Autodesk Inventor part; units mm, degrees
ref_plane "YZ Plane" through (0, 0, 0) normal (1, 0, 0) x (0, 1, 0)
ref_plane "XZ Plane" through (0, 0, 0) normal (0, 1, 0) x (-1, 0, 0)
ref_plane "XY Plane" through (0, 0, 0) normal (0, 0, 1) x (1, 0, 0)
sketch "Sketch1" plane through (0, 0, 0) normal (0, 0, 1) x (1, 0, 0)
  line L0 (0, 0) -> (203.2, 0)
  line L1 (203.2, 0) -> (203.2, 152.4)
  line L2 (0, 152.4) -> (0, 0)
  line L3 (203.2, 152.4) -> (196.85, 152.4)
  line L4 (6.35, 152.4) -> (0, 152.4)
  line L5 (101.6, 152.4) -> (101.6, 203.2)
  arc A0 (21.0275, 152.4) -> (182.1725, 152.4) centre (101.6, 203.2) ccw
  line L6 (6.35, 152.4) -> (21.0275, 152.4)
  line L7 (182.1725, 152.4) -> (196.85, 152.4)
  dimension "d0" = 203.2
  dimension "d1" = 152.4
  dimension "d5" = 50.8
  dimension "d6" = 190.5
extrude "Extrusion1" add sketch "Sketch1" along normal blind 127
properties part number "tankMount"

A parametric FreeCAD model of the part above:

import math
import FreeCAD as App
import Part
import Sketcher
from FreeCAD import Vector
Q = App.Units.Quantity

doc = App.newDocument("Part")
params = doc.addObject("Spreadsheet::Sheet", "Params")
for row, (alias, value) in enumerate([
    ("sketch1_width", "8 in"),
    ("sketch1_height", "6 in"),
    ("sketch1_radius", "3.75 in"),
    ("pad1_length", "5 in"),
], start=1):
    params.set(f"A{row}", alias)
    params.set(f"B{row}", "=" + value)
    params.setAlias(f"B{row}", alias)

body = doc.addObject("PartDesign::Body", "Body")

# Sketch on XY plane
sketch1 = body.newObject("Sketcher::SketchObject", "Sketch")
sketch1.AttachmentSupport = (doc.getObject("XY_Plane"), [""])
sketch1.MapMode = "FlatFace"
sketch1.addGeometry(Part.LineSegment(Vector(0, 152, 0), Vector(0, 0, 0)), False)
sketch1.addGeometry(Part.LineSegment(Vector(0, 0, 0), Vector(203, 0, 0)), False)
sketch1.addGeometry(Part.LineSegment(Vector(203, 0, 0), Vector(203, 152, 0)), False)
sketch1.addGeometry(Part.LineSegment(Vector(203, 152, 0), Vector(182, 152, 0)), False)
sketch1.addGeometry(Part.ArcOfCircle(Part.Circle(Vector(102, 203, 0), Vector(0, 0, 1), 95), math.radians(-148), math.radians(-32)), False)
sketch1.addGeometry(Part.LineSegment(Vector(21, 152, 0), Vector(0, 152, 0)), False)
sketch1.addConstraint(Sketcher.Constraint("Coincident", 0, 2, 1, 1))
sketch1.addConstraint(Sketcher.Constraint("Coincident", 1, 2, 2, 1))
sketch1.addConstraint(Sketcher.Constraint("Coincident", 2, 2, 3, 1))
sketch1.addConstraint(Sketcher.Constraint("Coincident", 3, 2, 4, 2))
sketch1.addConstraint(Sketcher.Constraint("Coincident", 4, 1, 5, 1))
sketch1.addConstraint(Sketcher.Constraint("Coincident", 5, 2, 0, 1))
sketch1.addConstraint(Sketcher.Constraint("Vertical", 0))
sketch1.addConstraint(Sketcher.Constraint("Horizontal", 1))
sketch1.addConstraint(Sketcher.Constraint("Vertical", 2))
sketch1.addConstraint(Sketcher.Constraint("Horizontal", 3))
sketch1.addConstraint(Sketcher.Constraint("Horizontal", 5))
sketch1.addConstraint(Sketcher.Constraint("Coincident", 0, 2, -1, 1))
sketch1.addConstraint(Sketcher.Constraint("Horizontal", 3, 2, 4, 1))
sketch1.addConstraint(Sketcher.Constraint("Equal", 3, 5))
sketch1.addConstraint(Sketcher.Constraint("DistanceX", 1, 1, 1, 2, Q("8 in")))
sketch1.addConstraint(Sketcher.Constraint("DistanceY", 0, 2, 0, 1, Q("6 in")))
sketch1.addConstraint(Sketcher.Constraint("Radius", 4, Q("3.75 in")))
sketch1.addConstraint(Sketcher.Constraint("DistanceY", -1, 1, 4, 3, Q("8 in")))
sketch1.setExpression("Constraints[14]", "Params.sketch1_width")
sketch1.setExpression("Constraints[15]", "Params.sketch1_height")
sketch1.setExpression("Constraints[16]", "Params.sketch1_radius")
pad1 = body.newObject("PartDesign::Pad", "Pad")
pad1.Profile = sketch1
pad1.setExpression("Length", "Params.pad1_length")

doc.recompute()
